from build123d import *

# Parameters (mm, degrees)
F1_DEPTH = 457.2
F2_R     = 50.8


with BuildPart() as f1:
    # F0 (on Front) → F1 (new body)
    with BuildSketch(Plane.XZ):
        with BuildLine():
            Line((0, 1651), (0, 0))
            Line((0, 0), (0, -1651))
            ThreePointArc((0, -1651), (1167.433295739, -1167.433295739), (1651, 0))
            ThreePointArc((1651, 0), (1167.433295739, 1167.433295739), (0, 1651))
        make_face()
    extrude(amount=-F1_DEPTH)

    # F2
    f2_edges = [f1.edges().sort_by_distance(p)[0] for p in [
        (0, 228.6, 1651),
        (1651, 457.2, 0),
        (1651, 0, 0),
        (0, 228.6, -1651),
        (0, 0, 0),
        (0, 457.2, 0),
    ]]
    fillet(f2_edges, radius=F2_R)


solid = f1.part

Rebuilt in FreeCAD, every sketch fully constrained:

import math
import FreeCAD as App
import Part
import Sketcher
from FreeCAD import Vector
Q = App.Units.Quantity

doc = App.newDocument("Part")
body = doc.addObject("PartDesign::Body", "Body")

# Sketch on XZ plane
sketch1 = body.newObject("Sketcher::SketchObject", "Sketch")
sketch1.AttachmentSupport = (doc.getObject("XZ_Plane"), [""])
sketch1.MapMode = "FlatFace"
sketch1.addGeometry([
    Part.LineSegment(Vector(0, 1651, 0), Vector(0, -1651, 0)),
    Part.ArcOfCircle(Part.Circle(Vector(0, 0, 0), Vector(0, 0, 1), 1651), math.radians(-90), math.radians(90)),
], False)
sketch1.addConstraint([
    Sketcher.Constraint("Coincident", 0, 1, 1, 2),
    Sketcher.Constraint("Coincident", 1, 1, 0, 2),
    Sketcher.Constraint("Vertical", 0),
    Sketcher.Constraint("Coincident", 1, 3, -1, 1),
    Sketcher.Constraint("PointOnObject", 0, 1, -2),
    Sketcher.Constraint("Radius", 1, Q("65 in")),
])
pad1 = body.newObject("PartDesign::Pad", "Pad")
pad1.Profile = sketch1
pad1.Length = Q("18 in")
pad1.Reversed = True
doc.recompute()

fillet = body.newObject("PartDesign::Fillet", "Fillet")
fillet.Base = (pad1, ["Edge1"])
fillet.UseAllEdges = True
fillet.Radius = Q("2 in")

doc.recompute()
